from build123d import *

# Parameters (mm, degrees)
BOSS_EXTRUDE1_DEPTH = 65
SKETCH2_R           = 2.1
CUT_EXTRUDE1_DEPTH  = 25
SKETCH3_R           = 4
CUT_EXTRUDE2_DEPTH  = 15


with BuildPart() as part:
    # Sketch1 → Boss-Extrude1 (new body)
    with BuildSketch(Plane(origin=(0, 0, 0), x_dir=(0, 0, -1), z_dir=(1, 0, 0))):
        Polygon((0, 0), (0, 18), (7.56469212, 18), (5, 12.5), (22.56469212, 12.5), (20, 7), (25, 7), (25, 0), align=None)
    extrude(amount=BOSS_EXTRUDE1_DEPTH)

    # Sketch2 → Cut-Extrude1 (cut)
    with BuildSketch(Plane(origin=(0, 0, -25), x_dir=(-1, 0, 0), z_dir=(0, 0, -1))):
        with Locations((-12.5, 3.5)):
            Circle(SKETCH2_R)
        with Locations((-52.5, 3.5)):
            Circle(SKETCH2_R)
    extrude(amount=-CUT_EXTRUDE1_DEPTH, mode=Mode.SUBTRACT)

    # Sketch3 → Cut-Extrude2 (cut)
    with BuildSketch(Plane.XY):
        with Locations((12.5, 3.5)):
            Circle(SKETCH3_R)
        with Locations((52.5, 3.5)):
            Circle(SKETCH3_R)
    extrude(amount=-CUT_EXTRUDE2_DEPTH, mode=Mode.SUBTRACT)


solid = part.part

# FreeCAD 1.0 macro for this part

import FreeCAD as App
import Part
import Sketcher
Q = App.Units.Quantity


def add_polygon(sketch, points):
    """Adds a closed chain of lines whose ends are joined by coincident constraints."""
    first, n = sketch.GeometryCount, len(points)
    for a, b in zip(points, points[1:] + points[:1]):
        sketch.addGeometry(Part.LineSegment(App.Vector(*a, 0), App.Vector(*b, 0)), False)
    for i in range(n):
        sketch.addConstraint(Sketcher.Constraint("Coincident", first + i, 2, first + (i + 1) % n, 1))

doc = App.newDocument("Part")
body = doc.addObject("PartDesign::Body", "Body")

sketch1 = body.newObject("Sketcher::SketchObject", "Sketch")
sketch1.AttachmentSupport = (doc.getObject("YZ_Plane"), [""])
sketch1.MapMode = "FlatFace"
add_polygon(sketch1, [(18, 0), (0, 0), (0, -25), (7, -25), (7, -20), (12.5, -22.564692), (12.5, -5), (18, -7.564692)])
sketch1.addConstraint([
    Sketcher.Constraint("Horizontal", 0),
    Sketcher.Constraint("Vertical", 1),
    Sketcher.Constraint("Horizontal", 2),
    Sketcher.Constraint("Vertical", 3),
    Sketcher.Constraint("Vertical", 5),
    Sketcher.Constraint("Vertical", 7),
    Sketcher.Constraint("Coincident", 0, 2, -1, 1),
    Sketcher.Constraint("Parallel", 4, 6),
    Sketcher.Constraint("Equal", 4, 6),
    Sketcher.Constraint("DistanceX", 0, 2, 0, 1, Q("18 mm")),
    Sketcher.Constraint("DistanceX", 2, 1, 2, 2, Q("7 mm")),
    Sketcher.Constraint("DistanceY", 1, 2, 1, 1, Q("25 mm")),
    Sketcher.Constraint("DistanceY", 3, 1, 3, 2, Q("5 mm")),
    Sketcher.Constraint("Angle", 4, Q("-25 deg")),
    Sketcher.Constraint("DistanceY", 5, 2, -1, 1, Q("5 mm")),
])
pad1 = body.newObject("PartDesign::Pad", "Pad")
pad1.Profile = sketch1
pad1.Length = 65

sketch2 = body.newObject("Sketcher::SketchObject", "Sketch001")
sketch2.AttachmentSupport = (doc.getObject("XY_Plane"), [""])
sketch2.MapMode = "FlatFace"
sketch2.AttachmentOffset = App.Placement(App.Vector(0, 0, -25), App.Rotation())
sketch2.addGeometry([
    Part.Circle(App.Vector(12.5, 3.5, 0), App.Vector(0, 0, 1), 2.1),
    Part.Circle(App.Vector(52.5, 3.5, 0), App.Vector(0, 0, 1), 2.1),
], False)
sketch2.addConstraint([
    Sketcher.Constraint("Equal", 0, 1),
    Sketcher.Constraint("Horizontal", 0, 3, 1, 3),
    Sketcher.Constraint("Diameter", 0, Q("4.2 mm")),
    Sketcher.Constraint("DistanceX", 0, 3, 1, 3, Q("40 mm")),
    Sketcher.Constraint("DistanceX", -1, 1, 0, 3, Q("12.5 mm")),
    Sketcher.Constraint("DistanceY", -1, 1, 0, 3, Q("3.5 mm")),
])
pocket1 = body.newObject("PartDesign::Pocket", "Pocket")
pocket1.Profile = sketch2
pocket1.Length = 25
pocket1.Reversed = True

sketch3 = body.newObject("Sketcher::SketchObject", "Sketch002")
sketch3.AttachmentSupport = (doc.getObject("XY_Plane"), [""])
sketch3.MapMode = "FlatFace"
sketch3.addGeometry([
    Part.Circle(App.Vector(12.5, 3.5, 0), App.Vector(0, 0, 1), 4),
    Part.Circle(App.Vector(52.5, 3.5, 0), App.Vector(0, 0, 1), 4),
], False)
sketch3.addConstraint([
    Sketcher.Constraint("Equal", 0, 1),
    Sketcher.Constraint("Horizontal", 0, 3, 1, 3),
    Sketcher.Constraint("Diameter", 0, Q("8 mm")),
    Sketcher.Constraint("DistanceX", 0, 3, 1, 3, Q("40 mm")),
    Sketcher.Constraint("DistanceX", -1, 1, 0, 3, Q("12.5 mm")),
    Sketcher.Constraint("DistanceY", -1, 1, 0, 3, Q("3.5 mm")),
])
pocket2 = body.newObject("PartDesign::Pocket", "Pocket001")
pocket2.Profile = sketch3
pocket2.Length = 15

doc.recompute()
